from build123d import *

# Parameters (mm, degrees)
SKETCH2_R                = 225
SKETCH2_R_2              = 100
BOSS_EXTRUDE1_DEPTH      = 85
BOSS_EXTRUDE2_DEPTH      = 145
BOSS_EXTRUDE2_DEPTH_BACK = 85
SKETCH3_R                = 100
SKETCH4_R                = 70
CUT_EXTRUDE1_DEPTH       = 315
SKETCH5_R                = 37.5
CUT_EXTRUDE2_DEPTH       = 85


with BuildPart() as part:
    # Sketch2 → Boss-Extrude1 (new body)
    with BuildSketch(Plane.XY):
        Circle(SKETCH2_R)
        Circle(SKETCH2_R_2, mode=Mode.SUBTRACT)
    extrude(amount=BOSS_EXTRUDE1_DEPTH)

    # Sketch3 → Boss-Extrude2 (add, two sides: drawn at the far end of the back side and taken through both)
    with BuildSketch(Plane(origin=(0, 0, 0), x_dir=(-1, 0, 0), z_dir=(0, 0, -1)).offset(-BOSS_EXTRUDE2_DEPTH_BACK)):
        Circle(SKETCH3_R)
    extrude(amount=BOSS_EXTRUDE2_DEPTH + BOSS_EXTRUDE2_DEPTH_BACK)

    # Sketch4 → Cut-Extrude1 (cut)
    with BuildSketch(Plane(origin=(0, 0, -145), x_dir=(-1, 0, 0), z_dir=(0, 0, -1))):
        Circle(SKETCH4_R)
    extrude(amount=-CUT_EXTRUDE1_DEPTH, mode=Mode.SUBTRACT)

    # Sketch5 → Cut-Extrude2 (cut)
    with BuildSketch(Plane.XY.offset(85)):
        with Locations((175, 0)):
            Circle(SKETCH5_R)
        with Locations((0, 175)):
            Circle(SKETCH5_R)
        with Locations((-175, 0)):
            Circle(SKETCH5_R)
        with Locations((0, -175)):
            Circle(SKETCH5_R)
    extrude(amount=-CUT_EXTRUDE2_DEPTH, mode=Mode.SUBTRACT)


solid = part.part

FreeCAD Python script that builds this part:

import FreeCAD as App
import Part
import Sketcher

doc = App.newDocument("Part")
body = doc.addObject("PartDesign::Body", "Body")

sketch1 = doc.addObject("Sketcher::SketchObject", "Sketch")
body.addObject(sketch1)
sketch1.AttachmentSupport = (doc.XY_Plane, [""])
sketch1.MapMode = "FlatFace"
sketch1.addGeometry([
    Part.Circle(App.Vector(0, 0, 0), App.Vector(0, 0, 1), 225),
    Part.Circle(App.Vector(0, 0, 0), App.Vector(0, 0, 1), 100),
], False)
sketch1.addConstraint([
    Sketcher.Constraint("Coincident", 0, 3, -1, 1),
    Sketcher.Constraint("Coincident", 1, 3, -1, 1),
    Sketcher.Constraint("Diameter", 0, 450.0),
    Sketcher.Constraint("Diameter", 1, 200.0),
])
pad1 = doc.addObject("PartDesign::Pad", "Pad")
body.addObject(pad1)
pad1.Profile = sketch1
pad1.Length = 85

sketch2 = doc.addObject("Sketcher::SketchObject", "Sketch001")
body.addObject(sketch2)
sketch2.AttachmentSupport = (doc.XY_Plane, [""])
sketch2.MapMode = "FlatFace"
sketch2.addGeometry(Part.Circle(App.Vector(0, 0, 0), App.Vector(0, 0, 1), 100), False)
sketch2.addConstraint([
    Sketcher.Constraint("Coincident", 0, 3, -1, 1),
    Sketcher.Constraint("Diameter", 0, 200.0),
])
pad2 = doc.addObject("PartDesign::Pad", "Pad001")
body.addObject(pad2)
pad2.Profile = sketch2
pad2.Type = "TwoLengths"
pad2.Length = 145
pad2.Length2 = 85
pad2.Reversed = True

sketch3 = doc.addObject("Sketcher::SketchObject", "Sketch002")
body.addObject(sketch3)
sketch3.AttachmentSupport = (doc.XY_Plane, [""])
sketch3.MapMode = "FlatFace"
sketch3.AttachmentOffset = App.Placement(App.Vector(0, 0, -145), App.Rotation())
sketch3.addGeometry(Part.Circle(App.Vector(0, 0, 0), App.Vector(0, 0, 1), 70), False)
sketch3.addConstraint([
    Sketcher.Constraint("Coincident", 0, 3, -1, 1),
    Sketcher.Constraint("Diameter", 0, 140.0),
])
pocket1 = doc.addObject("PartDesign::Pocket", "Pocket")
body.addObject(pocket1)
pocket1.Profile = sketch3
pocket1.Length = 315
pocket1.Reversed = True

sketch4 = doc.addObject("Sketcher::SketchObject", "Sketch003")
body.addObject(sketch4)
sketch4.AttachmentSupport = (doc.XY_Plane, [""])
sketch4.MapMode = "FlatFace"
sketch4.AttachmentOffset = App.Placement(App.Vector(0, 0, 85), App.Rotation())
sketch4.addGeometry([
    Part.Circle(App.Vector(175, 0, 0), App.Vector(0, 0, 1), 37.5),
    Part.Circle(App.Vector(0, 175, 0), App.Vector(0, 0, 1), 37.5),
    Part.Circle(App.Vector(-175, 0, 0), App.Vector(0, 0, 1), 37.5),
    Part.Circle(App.Vector(0, -175, 0), App.Vector(0, 0, 1), 37.5),
], False)
sketch4.addConstraint([
    Sketcher.Constraint("Equal", 0, 1),
    Sketcher.Constraint("Equal", 1, 2),
    Sketcher.Constraint("Equal", 2, 3),
    Sketcher.Constraint("Symmetric", 0, 3, 2, 3, -1, 1),
    Sketcher.Constraint("Symmetric", 1, 3, 3, 3, -1, 1),
    Sketcher.Constraint("PointOnObject", 0, 3, -1),
    Sketcher.Constraint("PointOnObject", 1, 3, -2),
    Sketcher.Constraint("Diameter", 0, 75.0),
    Sketcher.Constraint("DistanceX", -1, 1, 0, 3, 175.0),
    Sketcher.Constraint("DistanceY", -1, 1, 1, 3, 175.0),
])
pocket2 = doc.addObject("PartDesign::Pocket", "Pocket001")
body.addObject(pocket2)
pocket2.Profile = sketch4
pocket2.Length = 85

doc.recompute()
